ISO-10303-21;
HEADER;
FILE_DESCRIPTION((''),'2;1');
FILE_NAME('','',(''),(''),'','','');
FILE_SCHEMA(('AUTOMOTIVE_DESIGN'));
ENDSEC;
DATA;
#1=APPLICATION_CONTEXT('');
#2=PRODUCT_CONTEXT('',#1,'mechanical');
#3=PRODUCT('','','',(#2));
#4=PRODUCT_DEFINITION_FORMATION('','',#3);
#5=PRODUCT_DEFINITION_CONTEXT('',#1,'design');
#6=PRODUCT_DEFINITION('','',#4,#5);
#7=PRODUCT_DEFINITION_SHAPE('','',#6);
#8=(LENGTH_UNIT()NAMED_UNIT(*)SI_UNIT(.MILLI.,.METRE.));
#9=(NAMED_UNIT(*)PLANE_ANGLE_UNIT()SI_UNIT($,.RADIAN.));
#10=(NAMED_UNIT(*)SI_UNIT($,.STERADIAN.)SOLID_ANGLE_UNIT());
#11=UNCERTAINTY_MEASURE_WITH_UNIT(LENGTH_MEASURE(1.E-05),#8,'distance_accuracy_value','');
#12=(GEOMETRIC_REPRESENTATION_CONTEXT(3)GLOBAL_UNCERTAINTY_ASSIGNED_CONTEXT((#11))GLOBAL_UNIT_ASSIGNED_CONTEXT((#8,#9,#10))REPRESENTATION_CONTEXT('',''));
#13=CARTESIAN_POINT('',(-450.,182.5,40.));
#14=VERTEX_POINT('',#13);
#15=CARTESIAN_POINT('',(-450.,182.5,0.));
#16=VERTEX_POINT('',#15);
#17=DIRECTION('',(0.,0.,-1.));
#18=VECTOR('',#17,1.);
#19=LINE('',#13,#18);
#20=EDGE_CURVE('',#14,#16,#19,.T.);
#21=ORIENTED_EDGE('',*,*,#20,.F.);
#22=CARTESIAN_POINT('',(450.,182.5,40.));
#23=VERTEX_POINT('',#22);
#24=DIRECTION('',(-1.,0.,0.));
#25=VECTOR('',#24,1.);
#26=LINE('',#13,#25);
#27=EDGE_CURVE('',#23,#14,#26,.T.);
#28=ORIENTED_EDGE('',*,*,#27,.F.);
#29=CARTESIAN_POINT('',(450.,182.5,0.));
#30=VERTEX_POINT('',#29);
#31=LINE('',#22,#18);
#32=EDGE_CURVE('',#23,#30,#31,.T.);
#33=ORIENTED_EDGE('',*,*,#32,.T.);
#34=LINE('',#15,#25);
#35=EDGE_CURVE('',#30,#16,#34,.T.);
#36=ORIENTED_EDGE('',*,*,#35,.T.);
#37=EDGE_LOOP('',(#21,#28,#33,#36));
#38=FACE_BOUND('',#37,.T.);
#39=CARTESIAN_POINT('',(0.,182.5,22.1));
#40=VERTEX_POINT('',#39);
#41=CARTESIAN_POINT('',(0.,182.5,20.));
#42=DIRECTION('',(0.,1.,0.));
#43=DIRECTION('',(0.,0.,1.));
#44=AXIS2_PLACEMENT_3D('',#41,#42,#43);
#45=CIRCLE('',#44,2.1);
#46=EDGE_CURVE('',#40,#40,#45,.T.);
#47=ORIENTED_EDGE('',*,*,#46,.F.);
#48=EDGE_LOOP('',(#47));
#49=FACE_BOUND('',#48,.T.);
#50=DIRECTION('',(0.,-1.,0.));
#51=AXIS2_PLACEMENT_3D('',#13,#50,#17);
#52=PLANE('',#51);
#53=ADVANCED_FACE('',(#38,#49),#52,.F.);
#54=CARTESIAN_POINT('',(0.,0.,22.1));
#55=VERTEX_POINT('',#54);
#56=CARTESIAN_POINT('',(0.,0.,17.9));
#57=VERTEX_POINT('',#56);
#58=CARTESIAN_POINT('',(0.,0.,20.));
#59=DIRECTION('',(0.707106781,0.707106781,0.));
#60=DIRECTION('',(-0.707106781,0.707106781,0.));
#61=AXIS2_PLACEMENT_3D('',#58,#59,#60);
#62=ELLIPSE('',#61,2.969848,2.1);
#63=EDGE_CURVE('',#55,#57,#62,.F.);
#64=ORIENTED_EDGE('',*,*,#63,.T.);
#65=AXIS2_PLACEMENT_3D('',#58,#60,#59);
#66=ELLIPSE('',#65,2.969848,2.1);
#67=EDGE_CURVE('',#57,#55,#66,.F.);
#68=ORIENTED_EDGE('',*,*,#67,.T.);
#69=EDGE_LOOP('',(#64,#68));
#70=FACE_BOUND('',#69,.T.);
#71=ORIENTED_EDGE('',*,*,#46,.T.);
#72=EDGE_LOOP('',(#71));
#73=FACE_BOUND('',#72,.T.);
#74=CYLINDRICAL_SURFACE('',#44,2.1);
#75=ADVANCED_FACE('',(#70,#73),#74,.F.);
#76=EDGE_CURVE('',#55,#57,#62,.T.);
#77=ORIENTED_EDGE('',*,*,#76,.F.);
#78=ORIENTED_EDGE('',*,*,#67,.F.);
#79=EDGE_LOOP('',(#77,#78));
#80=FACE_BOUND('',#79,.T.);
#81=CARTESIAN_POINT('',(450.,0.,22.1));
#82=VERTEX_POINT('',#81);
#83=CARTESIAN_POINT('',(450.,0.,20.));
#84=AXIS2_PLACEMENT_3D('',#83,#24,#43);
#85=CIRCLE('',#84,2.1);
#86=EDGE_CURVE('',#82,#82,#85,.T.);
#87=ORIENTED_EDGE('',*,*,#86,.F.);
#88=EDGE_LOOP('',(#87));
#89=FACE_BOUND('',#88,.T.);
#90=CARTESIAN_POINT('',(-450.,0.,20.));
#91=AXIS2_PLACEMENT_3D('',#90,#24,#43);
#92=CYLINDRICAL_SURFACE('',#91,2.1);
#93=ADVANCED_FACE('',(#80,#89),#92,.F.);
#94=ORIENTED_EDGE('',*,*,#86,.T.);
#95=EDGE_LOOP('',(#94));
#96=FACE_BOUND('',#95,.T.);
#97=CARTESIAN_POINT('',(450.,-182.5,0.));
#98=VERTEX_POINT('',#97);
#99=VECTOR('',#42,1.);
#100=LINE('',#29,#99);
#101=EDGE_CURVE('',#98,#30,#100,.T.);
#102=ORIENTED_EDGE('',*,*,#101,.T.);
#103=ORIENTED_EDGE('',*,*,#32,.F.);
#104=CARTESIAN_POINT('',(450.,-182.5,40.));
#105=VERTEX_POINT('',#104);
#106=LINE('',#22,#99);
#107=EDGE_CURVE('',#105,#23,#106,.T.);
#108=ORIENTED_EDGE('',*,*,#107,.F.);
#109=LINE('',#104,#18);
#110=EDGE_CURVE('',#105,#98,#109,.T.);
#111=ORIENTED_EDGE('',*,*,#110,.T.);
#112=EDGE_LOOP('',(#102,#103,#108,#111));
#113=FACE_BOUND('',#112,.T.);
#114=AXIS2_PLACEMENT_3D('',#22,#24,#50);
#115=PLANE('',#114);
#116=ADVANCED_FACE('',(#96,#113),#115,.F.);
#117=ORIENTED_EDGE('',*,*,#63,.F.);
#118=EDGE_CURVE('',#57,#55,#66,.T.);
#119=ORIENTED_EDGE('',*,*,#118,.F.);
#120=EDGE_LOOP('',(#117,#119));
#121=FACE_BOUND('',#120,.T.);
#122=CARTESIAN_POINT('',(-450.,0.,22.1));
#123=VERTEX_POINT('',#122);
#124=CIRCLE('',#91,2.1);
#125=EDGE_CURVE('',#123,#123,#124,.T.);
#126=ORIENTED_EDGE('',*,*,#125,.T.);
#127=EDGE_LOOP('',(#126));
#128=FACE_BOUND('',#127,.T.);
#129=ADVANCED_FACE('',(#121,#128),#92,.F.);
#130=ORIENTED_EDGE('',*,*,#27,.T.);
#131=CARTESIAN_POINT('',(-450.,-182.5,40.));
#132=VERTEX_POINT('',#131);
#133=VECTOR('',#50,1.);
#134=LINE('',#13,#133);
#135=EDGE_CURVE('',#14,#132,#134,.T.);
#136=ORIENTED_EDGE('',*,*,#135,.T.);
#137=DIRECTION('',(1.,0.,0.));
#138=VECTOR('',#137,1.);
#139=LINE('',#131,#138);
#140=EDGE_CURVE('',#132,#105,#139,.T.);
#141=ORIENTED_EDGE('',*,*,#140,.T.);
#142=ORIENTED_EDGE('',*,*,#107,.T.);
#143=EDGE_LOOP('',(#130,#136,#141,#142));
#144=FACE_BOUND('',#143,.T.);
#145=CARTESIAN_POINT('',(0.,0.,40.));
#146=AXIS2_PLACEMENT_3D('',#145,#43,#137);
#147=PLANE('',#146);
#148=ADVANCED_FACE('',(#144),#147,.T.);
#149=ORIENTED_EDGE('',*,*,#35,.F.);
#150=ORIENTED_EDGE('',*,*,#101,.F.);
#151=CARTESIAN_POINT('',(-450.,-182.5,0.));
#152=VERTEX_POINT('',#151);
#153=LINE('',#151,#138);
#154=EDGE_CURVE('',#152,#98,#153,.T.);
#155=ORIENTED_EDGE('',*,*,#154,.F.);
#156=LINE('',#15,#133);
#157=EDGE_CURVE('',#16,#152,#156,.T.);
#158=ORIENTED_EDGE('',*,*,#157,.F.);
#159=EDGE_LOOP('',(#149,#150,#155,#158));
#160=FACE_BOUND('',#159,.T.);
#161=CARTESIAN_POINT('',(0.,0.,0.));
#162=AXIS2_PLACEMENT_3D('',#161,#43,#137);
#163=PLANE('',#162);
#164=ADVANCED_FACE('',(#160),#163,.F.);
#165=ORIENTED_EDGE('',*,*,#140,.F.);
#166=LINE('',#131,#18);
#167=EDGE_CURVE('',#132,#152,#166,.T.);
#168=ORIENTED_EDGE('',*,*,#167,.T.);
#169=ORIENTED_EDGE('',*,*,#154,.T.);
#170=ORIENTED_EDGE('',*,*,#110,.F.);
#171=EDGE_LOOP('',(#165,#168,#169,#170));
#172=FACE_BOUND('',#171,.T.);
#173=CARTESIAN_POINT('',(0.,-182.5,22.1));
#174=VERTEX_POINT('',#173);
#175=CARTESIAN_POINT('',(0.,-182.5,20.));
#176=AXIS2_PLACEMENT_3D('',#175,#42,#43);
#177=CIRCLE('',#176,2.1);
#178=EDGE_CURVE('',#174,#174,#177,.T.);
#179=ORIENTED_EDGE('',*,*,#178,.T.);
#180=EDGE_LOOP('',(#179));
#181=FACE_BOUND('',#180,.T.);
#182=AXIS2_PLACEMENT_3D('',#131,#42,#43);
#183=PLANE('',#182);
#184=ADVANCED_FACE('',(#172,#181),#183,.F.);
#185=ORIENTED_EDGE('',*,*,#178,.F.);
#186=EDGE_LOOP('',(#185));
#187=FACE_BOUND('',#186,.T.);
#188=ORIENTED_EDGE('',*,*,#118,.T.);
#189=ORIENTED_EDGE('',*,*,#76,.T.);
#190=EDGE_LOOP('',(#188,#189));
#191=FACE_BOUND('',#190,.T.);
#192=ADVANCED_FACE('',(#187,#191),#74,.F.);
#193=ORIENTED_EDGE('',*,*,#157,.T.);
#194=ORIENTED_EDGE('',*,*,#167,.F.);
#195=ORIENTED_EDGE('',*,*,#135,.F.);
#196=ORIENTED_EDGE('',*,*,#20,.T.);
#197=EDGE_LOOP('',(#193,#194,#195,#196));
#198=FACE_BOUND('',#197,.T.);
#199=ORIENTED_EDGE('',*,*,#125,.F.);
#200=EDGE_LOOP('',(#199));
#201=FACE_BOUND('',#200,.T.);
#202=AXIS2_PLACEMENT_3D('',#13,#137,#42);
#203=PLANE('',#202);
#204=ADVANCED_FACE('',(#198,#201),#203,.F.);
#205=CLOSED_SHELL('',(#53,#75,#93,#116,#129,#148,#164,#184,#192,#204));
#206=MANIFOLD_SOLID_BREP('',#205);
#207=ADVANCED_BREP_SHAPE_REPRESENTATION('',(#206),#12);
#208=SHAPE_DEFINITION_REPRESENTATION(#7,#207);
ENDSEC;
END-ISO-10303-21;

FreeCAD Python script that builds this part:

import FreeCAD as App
import Part
import Sketcher

V = App.Vector


def add_polygon(sketch, points):
    """Adds a closed chain of lines whose ends are joined by coincident constraints."""
    first, n = sketch.GeometryCount, len(points)
    for a, b in zip(points, points[1:] + points[:1]):
        sketch.addGeometry(Part.LineSegment(App.Vector(*a, 0), App.Vector(*b, 0)), False)
    for i in range(n):
        sketch.addConstraint(Sketcher.Constraint("Coincident", first + i, 2, first + (i + 1) % n, 1))

doc = App.newDocument("Part")
body = doc.addObject("PartDesign::Body", "Body")

# Sketch on XY plane
sketch1 = body.newObject("Sketcher::SketchObject", "Sketch")
sketch1.AttachmentSupport = (doc.getObject("XY_Plane"), [""])
sketch1.MapMode = "FlatFace"
add_polygon(sketch1, [(-450, 182), (-450, -182), (450, -182), (450, 182)])  # lines 0-3
sketch1.addConstraint([
    Sketcher.Constraint("Vertical", 0),
    Sketcher.Constraint("Horizontal", 1),
    Sketcher.Constraint("Vertical", 2),
    Sketcher.Constraint("Horizontal", 3),
    Sketcher.Constraint("Symmetric", 0, 2, 2, 2, -1, 1),
    Sketcher.Constraint("DistanceX", 1, 1, 1, 2, 900.0),
    Sketcher.Constraint("DistanceY", 0, 2, 0, 1, 365.0),
])
pad1 = body.newObject("PartDesign::Pad", "Pad")
pad1.Profile = sketch1
pad1.Length = 40

# Sketch on XZ plane
sketch2 = body.newObject("Sketcher::SketchObject", "Sketch001")
sketch2.AttachmentSupport = (doc.getObject("XZ_Plane"), [""])
sketch2.MapMode = "FlatFace"
sketch2.AttachmentOffset = App.Placement(V(0, 0, -182.5), App.Rotation())
sketch2.addGeometry(Part.Circle(V(0, 20, 0), V(0, 0, 1), 2.1), False)
sketch2.addConstraint([
    Sketcher.Constraint("PointOnObject", 0, 3, -2),
    Sketcher.Constraint("Diameter", 0, 4.2),
    Sketcher.Constraint("DistanceY", -1, 1, 0, 3, 20.0),
])
doc.recompute()
hole = body.newObject("PartDesign::Hole", "Hole")
hole.Profile = sketch2
hole.ThreadType = "None"
hole.Diameter = 4.2
hole.DepthType = "ThroughAll"
hole.Reversed = True

# Sketch on YZ plane
sketch3 = body.newObject("Sketcher::SketchObject", "Sketch002")
sketch3.AttachmentSupport = (doc.getObject("YZ_Plane"), [""])
sketch3.MapMode = "FlatFace"
sketch3.AttachmentOffset = App.Placement(V(0, 0, -450), App.Rotation())
sketch3.addGeometry(Part.Circle(V(0, 20, 0), V(0, 0, 1), 2.1), False)
sketch3.addConstraint([
    Sketcher.Constraint("PointOnObject", 0, 3, -2),
    Sketcher.Constraint("Diameter", 0, 4.2),
    Sketcher.Constraint("DistanceY", -1, 1, 0, 3, 20.0),
])
doc.recompute()
hole2 = body.newObject("PartDesign::Hole", "Hole001")
hole2.Profile = sketch3
hole2.ThreadType = "None"
hole2.Diameter = 4.2
hole2.DepthType = "ThroughAll"
hole2.Reversed = True

doc.recompute()
